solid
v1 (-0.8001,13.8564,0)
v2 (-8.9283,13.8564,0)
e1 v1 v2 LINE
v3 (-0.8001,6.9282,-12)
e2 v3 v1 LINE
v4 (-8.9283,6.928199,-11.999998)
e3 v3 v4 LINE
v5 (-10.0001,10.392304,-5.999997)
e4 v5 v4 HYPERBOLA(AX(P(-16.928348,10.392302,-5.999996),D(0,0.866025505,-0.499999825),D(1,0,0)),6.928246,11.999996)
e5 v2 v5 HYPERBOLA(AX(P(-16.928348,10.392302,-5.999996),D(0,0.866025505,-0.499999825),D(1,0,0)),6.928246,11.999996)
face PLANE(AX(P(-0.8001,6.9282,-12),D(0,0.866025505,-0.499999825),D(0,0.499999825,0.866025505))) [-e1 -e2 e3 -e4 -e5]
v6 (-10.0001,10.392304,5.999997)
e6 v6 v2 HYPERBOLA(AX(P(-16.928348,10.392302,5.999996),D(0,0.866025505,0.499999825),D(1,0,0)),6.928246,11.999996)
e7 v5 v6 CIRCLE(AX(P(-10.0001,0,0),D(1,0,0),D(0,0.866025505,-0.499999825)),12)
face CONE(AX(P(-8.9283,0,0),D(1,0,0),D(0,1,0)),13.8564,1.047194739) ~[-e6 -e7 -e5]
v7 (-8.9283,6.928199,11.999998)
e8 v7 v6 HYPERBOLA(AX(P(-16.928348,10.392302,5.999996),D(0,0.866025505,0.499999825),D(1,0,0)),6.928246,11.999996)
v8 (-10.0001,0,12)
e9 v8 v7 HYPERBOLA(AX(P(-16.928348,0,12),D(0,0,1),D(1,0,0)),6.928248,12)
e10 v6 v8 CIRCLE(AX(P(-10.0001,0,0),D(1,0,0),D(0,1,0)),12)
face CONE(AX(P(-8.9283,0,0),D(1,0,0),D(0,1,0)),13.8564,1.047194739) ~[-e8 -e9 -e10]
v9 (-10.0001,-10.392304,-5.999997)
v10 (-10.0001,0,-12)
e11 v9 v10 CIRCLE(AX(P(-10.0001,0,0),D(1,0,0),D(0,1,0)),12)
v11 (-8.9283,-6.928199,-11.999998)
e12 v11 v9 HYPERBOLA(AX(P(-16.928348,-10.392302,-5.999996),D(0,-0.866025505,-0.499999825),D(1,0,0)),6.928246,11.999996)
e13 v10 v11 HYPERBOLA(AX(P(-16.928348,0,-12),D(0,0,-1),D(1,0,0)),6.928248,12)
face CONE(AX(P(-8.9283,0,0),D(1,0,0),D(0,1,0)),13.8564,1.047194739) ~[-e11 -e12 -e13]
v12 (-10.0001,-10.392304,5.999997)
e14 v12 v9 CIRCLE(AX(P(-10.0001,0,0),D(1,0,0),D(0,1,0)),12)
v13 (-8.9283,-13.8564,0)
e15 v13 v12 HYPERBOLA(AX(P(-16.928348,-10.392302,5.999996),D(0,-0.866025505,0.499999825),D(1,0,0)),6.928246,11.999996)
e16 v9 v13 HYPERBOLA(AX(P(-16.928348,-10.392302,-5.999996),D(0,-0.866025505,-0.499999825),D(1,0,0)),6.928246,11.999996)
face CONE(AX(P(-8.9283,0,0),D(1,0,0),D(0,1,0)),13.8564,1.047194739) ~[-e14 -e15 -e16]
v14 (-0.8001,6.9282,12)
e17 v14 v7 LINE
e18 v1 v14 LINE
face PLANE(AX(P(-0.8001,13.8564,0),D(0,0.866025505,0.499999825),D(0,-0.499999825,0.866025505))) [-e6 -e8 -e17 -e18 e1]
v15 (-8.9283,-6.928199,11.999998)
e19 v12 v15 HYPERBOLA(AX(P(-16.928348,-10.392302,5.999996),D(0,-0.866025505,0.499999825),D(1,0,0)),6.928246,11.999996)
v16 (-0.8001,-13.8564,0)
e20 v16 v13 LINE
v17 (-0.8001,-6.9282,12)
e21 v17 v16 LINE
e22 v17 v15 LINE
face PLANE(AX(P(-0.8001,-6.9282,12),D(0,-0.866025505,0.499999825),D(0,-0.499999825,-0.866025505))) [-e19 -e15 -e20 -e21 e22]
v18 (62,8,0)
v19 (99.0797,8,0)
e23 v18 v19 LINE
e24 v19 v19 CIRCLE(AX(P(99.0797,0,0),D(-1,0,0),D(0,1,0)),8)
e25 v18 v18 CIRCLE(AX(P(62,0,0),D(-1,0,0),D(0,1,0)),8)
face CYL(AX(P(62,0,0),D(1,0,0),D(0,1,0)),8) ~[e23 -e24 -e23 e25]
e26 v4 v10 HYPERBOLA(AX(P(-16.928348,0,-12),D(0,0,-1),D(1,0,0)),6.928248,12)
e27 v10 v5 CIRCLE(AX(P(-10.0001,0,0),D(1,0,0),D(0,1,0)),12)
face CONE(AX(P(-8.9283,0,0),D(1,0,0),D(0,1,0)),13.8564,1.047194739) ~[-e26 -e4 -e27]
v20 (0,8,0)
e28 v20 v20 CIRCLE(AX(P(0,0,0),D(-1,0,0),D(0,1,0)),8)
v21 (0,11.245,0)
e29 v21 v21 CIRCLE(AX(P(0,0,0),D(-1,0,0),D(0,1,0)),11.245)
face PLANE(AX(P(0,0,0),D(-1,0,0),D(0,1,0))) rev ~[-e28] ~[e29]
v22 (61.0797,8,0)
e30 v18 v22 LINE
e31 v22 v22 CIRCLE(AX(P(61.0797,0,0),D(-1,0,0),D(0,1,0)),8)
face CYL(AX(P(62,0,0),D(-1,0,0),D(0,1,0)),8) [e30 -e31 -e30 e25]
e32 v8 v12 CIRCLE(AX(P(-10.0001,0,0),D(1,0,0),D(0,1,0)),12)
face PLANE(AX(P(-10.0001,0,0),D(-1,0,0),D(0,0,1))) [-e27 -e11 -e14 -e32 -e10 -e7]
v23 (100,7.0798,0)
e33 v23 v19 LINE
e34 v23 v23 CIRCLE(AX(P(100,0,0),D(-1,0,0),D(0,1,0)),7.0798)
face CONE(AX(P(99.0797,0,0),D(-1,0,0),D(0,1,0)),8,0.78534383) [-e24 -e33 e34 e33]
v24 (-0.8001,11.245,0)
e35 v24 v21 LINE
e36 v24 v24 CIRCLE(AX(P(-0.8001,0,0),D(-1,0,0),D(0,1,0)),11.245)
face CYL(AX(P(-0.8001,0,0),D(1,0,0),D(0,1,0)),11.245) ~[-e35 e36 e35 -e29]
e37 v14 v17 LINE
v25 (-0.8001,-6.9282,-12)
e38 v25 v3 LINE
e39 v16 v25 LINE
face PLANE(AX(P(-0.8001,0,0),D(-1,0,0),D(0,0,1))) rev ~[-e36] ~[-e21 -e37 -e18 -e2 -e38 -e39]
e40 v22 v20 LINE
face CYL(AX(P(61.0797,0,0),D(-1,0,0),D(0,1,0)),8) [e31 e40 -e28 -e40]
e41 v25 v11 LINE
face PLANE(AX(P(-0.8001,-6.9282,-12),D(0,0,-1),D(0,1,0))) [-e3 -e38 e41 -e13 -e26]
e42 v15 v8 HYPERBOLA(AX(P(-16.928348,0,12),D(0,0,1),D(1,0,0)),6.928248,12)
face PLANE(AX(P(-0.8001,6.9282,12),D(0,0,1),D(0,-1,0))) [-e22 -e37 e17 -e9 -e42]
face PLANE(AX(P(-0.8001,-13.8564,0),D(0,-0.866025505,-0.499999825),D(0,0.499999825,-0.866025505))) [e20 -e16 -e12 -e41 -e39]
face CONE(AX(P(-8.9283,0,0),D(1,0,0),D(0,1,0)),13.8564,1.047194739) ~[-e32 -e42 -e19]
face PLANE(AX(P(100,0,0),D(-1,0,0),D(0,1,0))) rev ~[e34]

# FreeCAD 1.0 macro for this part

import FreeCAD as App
import Part
import Sketcher
from FreeCAD import Vector
Q = App.Units.Quantity


def edges_at(feature, points):
    """Names of the edges that pass closest to the given points."""
    edges = feature.Shape.Edges
    near = lambda p: min(range(len(edges)), key=lambda i: edges[i].distToShape(Part.Vertex(*p))[0])
    return sorted({f"Edge{near(p) + 1}" for p in points})


def add_polygon(sketch, points):
    """Adds a closed chain of lines whose ends are joined by coincident constraints."""
    first, n = sketch.GeometryCount, len(points)
    for a, b in zip(points, points[1:] + points[:1]):
        sketch.addGeometry(Part.LineSegment(App.Vector(*a, 0), App.Vector(*b, 0)), False)
    for i in range(n):
        sketch.addConstraint(Sketcher.Constraint("Coincident", first + i, 2, first + (i + 1) % n, 1))

doc = App.newDocument("Part")
params = doc.addObject("Spreadsheet::Sheet", "Params")
for row, (alias, value) in enumerate([
    ("sketch1_width", "100 mm"),
    ("sketch1_width2", "0.8 mm"),
    ("sketch1_height", "8 mm"),
    ("revolution_angle", "360 deg"),
    ("pad1_length", "9.2 mm"),
    ("groove_angle", "360 deg"),
    ("chamfer_size", "0.9202 mm"),
    ("chamfer_size2", "0.9203 mm"),
], start=1):
    params.set(f"A{row}", alias)
    params.set(f"B{row}", "=" + value)
    params.setAlias(f"B{row}", alias)

body = doc.addObject("PartDesign::Body", "Body")

sketch1 = body.newObject("Sketcher::SketchObject", "Sketch")
sketch1.AttachmentSupport = (doc.getObject("XY_Plane"), [""])
sketch1.MapMode = "FlatFace"
add_polygon(sketch1, [(0, 8), (0, 11.2), (-0.8, 11.2), (-0.8, 0), (100, 0), (100, 8)])
sketch1.addConstraint([
    Sketcher.Constraint("Vertical", 0),
    Sketcher.Constraint("Horizontal", 1),
    Sketcher.Constraint("Vertical", 2),
    Sketcher.Constraint("Horizontal", 3),
    Sketcher.Constraint("Vertical", 4),
    Sketcher.Constraint("Horizontal", 5),
    Sketcher.Constraint("PointOnObject", 0, 2, -2),
    Sketcher.Constraint("PointOnObject", 2, 2, -1),
    Sketcher.Constraint("DistanceX", 5, 2, 5, 1, 100.0),
    Sketcher.Constraint("DistanceX", 1, 2, 1, 1, 0.8),
    Sketcher.Constraint("DistanceY", 4, 1, 4, 2, 8.0),
    Sketcher.Constraint("DistanceY", 0, 1, 0, 2, 3.245),
])
sketch1.setExpression("Constraints[14]", "Params.sketch1_width")
sketch1.setExpression("Constraints[15]", "Params.sketch1_width2")
sketch1.setExpression("Constraints[16]", "Params.sketch1_height")
revolution = body.newObject("PartDesign::Revolution", "Revolution")
revolution.Profile = sketch1
revolution.ReferenceAxis = (sketch1, ["H_Axis"])
revolution.setExpression("Angle", "Params.revolution_angle")

sketch2 = body.newObject("Sketcher::SketchObject", "Sketch001")
sketch2.AttachmentSupport = (doc.getObject("YZ_Plane"), [""])
sketch2.MapMode = "FlatFace"
sketch2.AttachmentOffset = App.Placement(Vector(0, 0, -0.8001), App.Rotation())
add_polygon(sketch2, [(7, 12), (14, 0), (7, -12), (-7, -12), (-14, 0), (-7, 12)])
sketch2.addConstraint([
    Sketcher.Constraint("Horizontal", 2),
    Sketcher.Constraint("Horizontal", 5),
    Sketcher.Constraint("Symmetric", 0, 2, 3, 2, -1, 1),
    Sketcher.Constraint("Symmetric", 1, 2, 4, 2, -1, 1),
    Sketcher.Constraint("PointOnObject", 0, 2, -1),
    Sketcher.Constraint("Parallel", 0, 3),
    Sketcher.Constraint("Vertical", 2, 2, 4, 2),
    Sketcher.Constraint("DistanceY", 2, 2, 4, 2, 24.0),
    Sketcher.Constraint("Angle", 0, Q("-60 deg")),
    Sketcher.Constraint("DistanceX", 2, 2, 2, 1, 13.8564),
])
pad1 = body.newObject("PartDesign::Pad", "Pad")
pad1.Profile = sketch2
pad1.setExpression("Length", "Params.pad1_length")
pad1.Reversed = True

sketch3 = body.newObject("Sketcher::SketchObject", "Sketch002")
sketch3.AttachmentSupport = (doc.getObject("XY_Plane"), [""])
sketch3.MapMode = "FlatFace"
add_polygon(sketch3, [(-10, 13.9), (-10, 12), (-8.9, 13.9)])
sketch3.addConstraint([
    Sketcher.Constraint("Vertical", 0),
    Sketcher.Constraint("Horizontal", 2),
    Sketcher.Constraint("Angle", 1, Q("59.9998 deg")),
    Sketcher.Constraint("DistanceX", 0, 2, -1, 1, 10.0),
    Sketcher.Constraint("DistanceY", -1, 1, 0, 2, 12.0),
    Sketcher.Constraint("DistanceX", 2, 2, 2, 1, 1.0718),
])
groove = body.newObject("PartDesign::Groove", "Groove")
groove.Profile = sketch3
groove.ReferenceAxis = (sketch3, ["H_Axis"])
groove.setExpression("Angle", "Params.groove_angle")
doc.recompute()

chamfer = body.newObject("PartDesign::Chamfer", "Chamfer")
chamfer.Base = (groove, edges_at(groove, [(100, -8, 0)]))
chamfer.ChamferType = "Two distances"
chamfer.setExpression("Size", "Params.chamfer_size")
chamfer.setExpression("Size2", "Params.chamfer_size2")

doc.recompute()
